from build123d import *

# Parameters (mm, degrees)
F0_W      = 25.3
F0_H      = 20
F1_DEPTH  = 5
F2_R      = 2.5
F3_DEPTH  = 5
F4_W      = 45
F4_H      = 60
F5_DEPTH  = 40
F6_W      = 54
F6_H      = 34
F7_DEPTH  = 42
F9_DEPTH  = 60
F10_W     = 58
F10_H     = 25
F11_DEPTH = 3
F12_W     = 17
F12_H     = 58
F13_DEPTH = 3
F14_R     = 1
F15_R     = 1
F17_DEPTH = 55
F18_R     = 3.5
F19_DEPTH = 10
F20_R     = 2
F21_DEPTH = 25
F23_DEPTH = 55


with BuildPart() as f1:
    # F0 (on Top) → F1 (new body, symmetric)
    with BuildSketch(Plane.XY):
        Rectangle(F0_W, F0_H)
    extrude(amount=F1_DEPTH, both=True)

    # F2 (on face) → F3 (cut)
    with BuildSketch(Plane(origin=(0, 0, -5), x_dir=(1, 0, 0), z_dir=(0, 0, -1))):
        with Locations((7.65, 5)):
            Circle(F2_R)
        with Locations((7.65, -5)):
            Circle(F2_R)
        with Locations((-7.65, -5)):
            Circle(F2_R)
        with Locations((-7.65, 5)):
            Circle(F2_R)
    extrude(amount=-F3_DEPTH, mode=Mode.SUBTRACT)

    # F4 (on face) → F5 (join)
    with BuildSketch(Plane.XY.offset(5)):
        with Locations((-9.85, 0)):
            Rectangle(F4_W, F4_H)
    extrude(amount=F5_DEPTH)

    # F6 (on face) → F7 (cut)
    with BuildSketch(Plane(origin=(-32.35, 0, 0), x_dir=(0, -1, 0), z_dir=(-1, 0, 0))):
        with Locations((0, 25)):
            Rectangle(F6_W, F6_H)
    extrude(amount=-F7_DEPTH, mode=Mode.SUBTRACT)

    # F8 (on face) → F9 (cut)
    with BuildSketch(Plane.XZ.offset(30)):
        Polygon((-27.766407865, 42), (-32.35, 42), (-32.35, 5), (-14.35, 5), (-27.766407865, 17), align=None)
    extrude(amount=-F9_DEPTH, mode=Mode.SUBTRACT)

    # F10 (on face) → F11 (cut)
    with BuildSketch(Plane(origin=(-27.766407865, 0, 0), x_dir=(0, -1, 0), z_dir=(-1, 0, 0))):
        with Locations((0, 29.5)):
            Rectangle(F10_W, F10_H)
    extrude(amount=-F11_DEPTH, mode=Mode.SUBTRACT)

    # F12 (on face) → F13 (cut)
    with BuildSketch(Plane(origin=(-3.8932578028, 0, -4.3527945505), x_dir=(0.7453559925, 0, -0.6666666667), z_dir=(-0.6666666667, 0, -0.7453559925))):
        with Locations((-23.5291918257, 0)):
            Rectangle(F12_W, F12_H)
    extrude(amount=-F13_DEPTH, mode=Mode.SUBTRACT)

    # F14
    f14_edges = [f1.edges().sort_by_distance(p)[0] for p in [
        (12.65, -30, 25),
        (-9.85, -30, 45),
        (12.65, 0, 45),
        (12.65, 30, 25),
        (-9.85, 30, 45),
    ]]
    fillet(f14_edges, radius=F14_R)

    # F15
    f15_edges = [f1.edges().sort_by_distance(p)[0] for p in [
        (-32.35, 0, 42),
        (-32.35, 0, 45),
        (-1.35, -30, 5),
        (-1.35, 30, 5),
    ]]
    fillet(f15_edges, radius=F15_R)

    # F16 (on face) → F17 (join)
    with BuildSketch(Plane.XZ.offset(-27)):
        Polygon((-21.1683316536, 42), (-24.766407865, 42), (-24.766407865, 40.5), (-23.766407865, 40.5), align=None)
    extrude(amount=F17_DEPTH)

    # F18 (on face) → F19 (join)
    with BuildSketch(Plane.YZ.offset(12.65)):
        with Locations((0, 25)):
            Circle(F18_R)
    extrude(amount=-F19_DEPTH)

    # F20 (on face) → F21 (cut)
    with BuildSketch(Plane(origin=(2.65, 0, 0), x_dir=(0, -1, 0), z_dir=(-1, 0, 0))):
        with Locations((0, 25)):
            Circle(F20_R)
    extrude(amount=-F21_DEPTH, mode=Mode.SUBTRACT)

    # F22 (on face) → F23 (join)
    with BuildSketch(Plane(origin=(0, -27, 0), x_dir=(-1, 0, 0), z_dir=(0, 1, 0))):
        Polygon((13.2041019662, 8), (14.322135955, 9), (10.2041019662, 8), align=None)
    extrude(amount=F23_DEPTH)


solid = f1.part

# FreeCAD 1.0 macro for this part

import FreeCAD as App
import Part
import Sketcher

V = App.Vector
Q = App.Units.Quantity


def edges_at(feature, points):
    """Names of the edges that pass closest to the given points."""
    edges = feature.Shape.Edges
    near = lambda p: min(range(len(edges)), key=lambda i: edges[i].distToShape(Part.Vertex(*p))[0])
    return sorted({f"Edge{near(p) + 1}" for p in points})

doc = App.newDocument("Part")
body = doc.addObject("PartDesign::Body", "Body")

# Sketch on XY plane
sketch1 = body.newObject("Sketcher::SketchObject", "Sketch")
sketch1.AttachmentSupport = (doc.getObject("XY_Plane"), [""])
sketch1.MapMode = "FlatFace"
sketch1.addGeometry([
    Part.LineSegment(V(-12.65, 10, 0), V(-12.65, -10, 0)),
    Part.LineSegment(V(-12.65, -10, 0), V(12.65, -10, 0)),
    Part.LineSegment(V(12.65, -10, 0), V(12.65, 10, 0)),
    Part.LineSegment(V(12.65, 10, 0), V(-12.65, 10, 0)),
], False)
sketch1.addConstraint([
    Sketcher.Constraint("Coincident", 0, 2, 1, 1),
    Sketcher.Constraint("Coincident", 1, 2, 2, 1),
    Sketcher.Constraint("Coincident", 2, 2, 3, 1),
    Sketcher.Constraint("Coincident", 3, 2, 0, 1),
    Sketcher.Constraint("Vertical", 0),
    Sketcher.Constraint("Horizontal", 1),
    Sketcher.Constraint("Vertical", 2),
    Sketcher.Constraint("Horizontal", 3),
    Sketcher.Constraint("Symmetric", 0, 2, 2, 2, -1, 1),
    Sketcher.Constraint("DistanceY", 0, 2, 0, 1, Q("20 mm")),
    Sketcher.Constraint("DistanceX", 1, 1, 1, 2, Q("25.3 mm")),
])
pad1 = body.newObject("PartDesign::Pad", "Pad")
pad1.Profile = sketch1
pad1.Length = 10
pad1.Midplane = True

# Sketch on XY plane
sketch2 = body.newObject("Sketcher::SketchObject", "Sketch001")
sketch2.AttachmentSupport = (doc.getObject("XY_Plane"), [""])
sketch2.MapMode = "FlatFace"
sketch2.AttachmentOffset = App.Placement(V(0, 0, -5), App.Rotation())
sketch2.addGeometry([
    Part.Circle(V(7.65, -5, 0), V(0, 0, 1), 2.5),
    Part.Circle(V(7.65, 5, 0), V(0, 0, 1), 2.5),
    Part.Circle(V(-7.65, 5, 0), V(0, 0, 1), 2.5),
    Part.Circle(V(-7.65, -5, 0), V(0, 0, 1), 2.5),
], False)
sketch2.addConstraint([
    Sketcher.Constraint("Equal", 0, 1),
    Sketcher.Constraint("Equal", 1, 2),
    Sketcher.Constraint("Equal", 2, 3),
    Sketcher.Constraint("Symmetric", 0, 3, 2, 3, -1, 1),
    Sketcher.Constraint("Symmetric", 1, 3, 3, 3, -1, 1),
    Sketcher.Constraint("Symmetric", 1, 3, 2, 3, -2),
    Sketcher.Constraint("Diameter", 0, Q("5 mm")),
    Sketcher.Constraint("DistanceY", 0, 3, -1, 1, Q("5 mm")),
    Sketcher.Constraint("DistanceX", 2, 3, 1, 3, Q("15.3 mm")),
])
pocket1 = body.newObject("PartDesign::Pocket", "Pocket")
pocket1.Profile = sketch2
pocket1.Length = 5
pocket1.Reversed = True

# Sketch on XY plane
sketch3 = body.newObject("Sketcher::SketchObject", "Sketch002")
sketch3.AttachmentSupport = (doc.getObject("XY_Plane"), [""])
sketch3.MapMode = "FlatFace"
sketch3.AttachmentOffset = App.Placement(V(0, 0, 5), App.Rotation())
sketch3.addGeometry([
    Part.LineSegment(V(-32.35, 30, 0), V(-32.35, -30, 0)),
    Part.LineSegment(V(-32.35, -30, 0), V(12.65, -30, 0)),
    Part.LineSegment(V(12.65, -30, 0), V(12.65, 30, 0)),
    Part.LineSegment(V(12.65, 30, 0), V(-32.35, 30, 0)),
], False)
sketch3.addConstraint([
    Sketcher.Constraint("Coincident", 0, 2, 1, 1),
    Sketcher.Constraint("Coincident", 1, 2, 2, 1),
    Sketcher.Constraint("Coincident", 2, 2, 3, 1),
    Sketcher.Constraint("Coincident", 3, 2, 0, 1),
    Sketcher.Constraint("Vertical", 0),
    Sketcher.Constraint("Horizontal", 1),
    Sketcher.Constraint("Vertical", 2),
    Sketcher.Constraint("Horizontal", 3),
    Sketcher.Constraint("DistanceX", 1, 1, 1, 2, Q("45 mm")),
    Sketcher.Constraint("DistanceY", 0, 2, 0, 1, Q("60 mm")),
    Sketcher.Constraint("DistanceY", 0, 2, -1, 1, Q("30 mm")),
    Sketcher.Constraint("DistanceX", 0, 2, -1, 1, Q("32.35 mm")),
])
pad2 = body.newObject("PartDesign::Pad", "Pad001")
pad2.Profile = sketch3
pad2.Length = 40

# Sketch on YZ plane
sketch4 = body.newObject("Sketcher::SketchObject", "Sketch003")
sketch4.AttachmentSupport = (doc.getObject("YZ_Plane"), [""])
sketch4.MapMode = "FlatFace"
sketch4.AttachmentOffset = App.Placement(V(0, 0, -32.35), App.Rotation())
sketch4.addGeometry([
    Part.LineSegment(V(27, 42, 0), V(27, 8, 0)),
    Part.LineSegment(V(27, 8, 0), V(-27, 8, 0)),
    Part.LineSegment(V(-27, 8, 0), V(-27, 42, 0)),
    Part.LineSegment(V(-27, 42, 0), V(27, 42, 0)),
], False)
sketch4.addConstraint([
    Sketcher.Constraint("Coincident", 0, 2, 1, 1),
    Sketcher.Constraint("Coincident", 1, 2, 2, 1),
    Sketcher.Constraint("Coincident", 2, 2, 3, 1),
    Sketcher.Constraint("Coincident", 3, 2, 0, 1),
    Sketcher.Constraint("Vertical", 0),
    Sketcher.Constraint("Horizontal", 1),
    Sketcher.Constraint("Vertical", 2),
    Sketcher.Constraint("Horizontal", 3),
    Sketcher.Constraint("DistanceX", 1, 2, 1, 1, Q("54 mm")),
    Sketcher.Constraint("DistanceY", 0, 2, 0, 1, Q("34 mm")),
    Sketcher.Constraint("DistanceX", -1, 1, 0, 2, Q("27 mm")),
    Sketcher.Constraint("DistanceY", -1, 1, 0, 2, Q("8 mm")),
])
pocket2 = body.newObject("PartDesign::Pocket", "Pocket001")
pocket2.Profile = sketch4
pocket2.Length = 42
pocket2.Reversed = True

# Sketch on XZ plane
sketch5 = body.newObject("Sketcher::SketchObject", "Sketch004")
sketch5.AttachmentSupport = (doc.getObject("XZ_Plane"), [""])
sketch5.MapMode = "FlatFace"
sketch5.AttachmentOffset = App.Placement(V(0, 0, 30), App.Rotation())
sketch5.addGeometry([
    Part.LineSegment(V(-27.766408, 42, 0), V(-32.35, 42, 0)),  # 0
    Part.LineSegment(V(-32.35, 42, 0), V(-32.35, 5, 0)),  # 1
    Part.LineSegment(V(-32.35, 5, 0), V(-14.35, 5, 0)),  # 2
    Part.LineSegment(V(-14.35, 5, 0), V(-27.766408, 17, 0)),  # 3
    Part.LineSegment(V(-27.766408, 17, 0), V(-27.766408, 42, 0)),  # 4
], False)
sketch5.addConstraint([
    Sketcher.Constraint("Coincident", 0, 2, 1, 1),
    Sketcher.Constraint("Coincident", 1, 2, 2, 1),
    Sketcher.Constraint("Coincident", 2, 2, 3, 1),
    Sketcher.Constraint("Coincident", 3, 2, 4, 1),
    Sketcher.Constraint("Coincident", 4, 2, 0, 1),
    Sketcher.Constraint("Horizontal", 0),
    Sketcher.Constraint("Vertical", 1),
    Sketcher.Constraint("Horizontal", 2),
    Sketcher.Constraint("Vertical", 4),
    Sketcher.Constraint("DistanceX", 2, 1, 2, 2, Q("18 mm")),
    Sketcher.Constraint("DistanceY", 1, 2, 1, 1, Q("37 mm")),
    Sketcher.Constraint("DistanceY", 4, 1, 4, 2, Q("25 mm")),
    Sketcher.Constraint("Distance", 3, Q("18 mm")),
    Sketcher.Constraint("DistanceY", -1, 1, 0, 2, Q("42 mm")),
    Sketcher.Constraint("DistanceX", 0, 2, -1, 1, Q("32.35 mm")),
])
pocket3 = body.newObject("PartDesign::Pocket", "Pocket002")
pocket3.Profile = sketch5
pocket3.Length = 60

# Sketch on YZ plane
sketch6 = body.newObject("Sketcher::SketchObject", "Sketch005")
sketch6.AttachmentSupport = (doc.getObject("YZ_Plane"), [""])
sketch6.MapMode = "FlatFace"
sketch6.AttachmentOffset = App.Placement(V(0, 0, -27.766408), App.Rotation())
sketch6.addGeometry([
    Part.LineSegment(V(29, 42, 0), V(29, 17, 0)),
    Part.LineSegment(V(29, 17, 0), V(-29, 17, 0)),
    Part.LineSegment(V(-29, 17, 0), V(-29, 42, 0)),
    Part.LineSegment(V(-29, 42, 0), V(29, 42, 0)),
], False)
sketch6.addConstraint([
    Sketcher.Constraint("Coincident", 0, 2, 1, 1),
    Sketcher.Constraint("Coincident", 1, 2, 2, 1),
    Sketcher.Constraint("Coincident", 2, 2, 3, 1),
    Sketcher.Constraint("Coincident", 3, 2, 0, 1),
    Sketcher.Constraint("Vertical", 0),
    Sketcher.Constraint("Horizontal", 1),
    Sketcher.Constraint("Vertical", 2),
    Sketcher.Constraint("Horizontal", 3),
    Sketcher.Constraint("DistanceX", 1, 2, 1, 1, Q("58 mm")),
    Sketcher.Constraint("DistanceY", 0, 2, 0, 1, Q("25 mm")),
    Sketcher.Constraint("DistanceX", -1, 1, 0, 2, Q("29 mm")),
    Sketcher.Constraint("DistanceY", -1, 1, 0, 2, Q("17 mm")),
])
pocket4 = body.newObject("PartDesign::Pocket", "Pocket003")
pocket4.Profile = sketch6
pocket4.Length = 3
pocket4.Reversed = True

# Sketch on an angled plane
sketch7 = body.newObject("Sketcher::SketchObject", "Sketch006")
sketch7.Placement = App.Placement(V(-3.893258, 0, -4.352795), App.Rotation(V(0.745355992, 0, -0.666666667), V(0, -1, 0), V(-0.666666667, 0, -0.745355992), "ZXY"))
sketch7.addGeometry([
    Part.LineSegment(V(-32.029192, 29, 0), V(-32.029192, -29, 0)),
    Part.LineSegment(V(-32.029192, -29, 0), V(-15.029192, -29, 0)),
    Part.LineSegment(V(-15.029192, -29, 0), V(-15.029192, 29, 0)),
    Part.LineSegment(V(-15.029192, 29, 0), V(-32.029192, 29, 0)),
], False)
sketch7.addConstraint([
    Sketcher.Constraint("Coincident", 0, 2, 1, 1),
    Sketcher.Constraint("Coincident", 1, 2, 2, 1),
    Sketcher.Constraint("Coincident", 2, 2, 3, 1),
    Sketcher.Constraint("Coincident", 3, 2, 0, 1),
    Sketcher.Constraint("Vertical", 0),
    Sketcher.Constraint("Horizontal", 1),
    Sketcher.Constraint("Vertical", 2),
    Sketcher.Constraint("Horizontal", 3),
    Sketcher.Constraint("DistanceX", 1, 1, 1, 2, Q("17 mm")),
    Sketcher.Constraint("DistanceY", 0, 2, 0, 1, Q("58 mm")),
    Sketcher.Constraint("DistanceY", 0, 2, -1, 1, Q("29 mm")),
    Sketcher.Constraint("DistanceX", 0, 2, -1, 1, Q("32.029192 mm")),
])
pocket5 = body.newObject("PartDesign::Pocket", "Pocket004")
pocket5.Profile = sketch7
pocket5.Length = 3
doc.recompute()

fillet = body.newObject("PartDesign::Fillet", "Fillet")
fillet.Base = (pocket5, edges_at(pocket5, [
    (12.65, -30, 25),
    (-9.85, -30, 45),
    (12.65, 0, 45),
    (12.65, 30, 25),
    (-9.85, 30, 45),
]))
fillet.Radius = 1
doc.recompute()

fillet2 = body.newObject("PartDesign::Fillet", "Fillet001")
fillet2.Base = (fillet, edges_at(fillet, [
    (-32.35, 0, 42),
    (-32.35, 0, 45),
    (-1.35, -30, 5),
    (-1.35, 30, 5),
]))
fillet2.Radius = 1

# Sketch on XZ plane
sketch8 = body.newObject("Sketcher::SketchObject", "Sketch007")
sketch8.AttachmentSupport = (doc.getObject("XZ_Plane"), [""])
sketch8.MapMode = "FlatFace"
sketch8.AttachmentOffset = App.Placement(V(0, 0, -27), App.Rotation())
sketch8.addGeometry([
    Part.LineSegment(V(-21.168332, 42, 0), V(-24.766408, 42, 0)),
    Part.LineSegment(V(-24.766408, 42, 0), V(-24.766408, 40.5, 0)),
    Part.LineSegment(V(-24.766408, 40.5, 0), V(-23.766408, 40.5, 0)),
    Part.LineSegment(V(-23.766408, 40.5, 0), V(-21.168332, 42, 0)),
], False)
sketch8.addConstraint([
    Sketcher.Constraint("Coincident", 0, 2, 1, 1),
    Sketcher.Constraint("Coincident", 1, 2, 2, 1),
    Sketcher.Constraint("Coincident", 2, 2, 3, 1),
    Sketcher.Constraint("Coincident", 3, 2, 0, 1),
    Sketcher.Constraint("Horizontal", 0),
    Sketcher.Constraint("Vertical", 1),
    Sketcher.Constraint("Horizontal", 2),
    Sketcher.Constraint("DistanceX", 2, 1, 2, 2, Q("1 mm")),
    Sketcher.Constraint("Angle", 3, Q("30 deg")),
    Sketcher.Constraint("Distance", 3, Q("3 mm")),
    Sketcher.Constraint("DistanceY", -1, 1, 0, 2, Q("42 mm")),
    Sketcher.Constraint("DistanceX", 3, 2, -1, 1, Q("21.168332 mm")),
])
pad3 = body.newObject("PartDesign::Pad", "Pad002")
pad3.Profile = sketch8
pad3.Length = 55

# Sketch on YZ plane
sketch9 = body.newObject("Sketcher::SketchObject", "Sketch008")
sketch9.AttachmentSupport = (doc.getObject("YZ_Plane"), [""])
sketch9.MapMode = "FlatFace"
sketch9.AttachmentOffset = App.Placement(V(0, 0, 12.65), App.Rotation())
sketch9.addGeometry(Part.Circle(V(0, 25, 0), V(0, 0, 1), 3.5), False)
sketch9.addConstraint([
    Sketcher.Constraint("PointOnObject", 0, 3, -2),
    Sketcher.Constraint("Diameter", 0, Q("7 mm")),
    Sketcher.Constraint("DistanceY", -1, 1, 0, 3, Q("25 mm")),
])
pad4 = body.newObject("PartDesign::Pad", "Pad003")
pad4.Profile = sketch9
pad4.Length = 10
pad4.Reversed = True

# Sketch on YZ plane
sketch10 = body.newObject("Sketcher::SketchObject", "Sketch009")
sketch10.AttachmentSupport = (doc.getObject("YZ_Plane"), [""])
sketch10.MapMode = "FlatFace"
sketch10.AttachmentOffset = App.Placement(V(0, 0, 2.65), App.Rotation())
sketch10.addGeometry(Part.Circle(V(0, 25, 0), V(0, 0, 1), 2), False)
sketch10.addConstraint([
    Sketcher.Constraint("PointOnObject", 0, 3, -2),
    Sketcher.Constraint("Diameter", 0, Q("4 mm")),
    Sketcher.Constraint("DistanceY", -1, 1, 0, 3, Q("25 mm")),
])
pocket6 = body.newObject("PartDesign::Pocket", "Pocket005")
pocket6.Profile = sketch10
pocket6.Length = 25
pocket6.Reversed = True

# Sketch on XZ plane
sketch11 = body.newObject("Sketcher::SketchObject", "Sketch010")
sketch11.AttachmentSupport = (doc.getObject("XZ_Plane"), [""])
sketch11.MapMode = "FlatFace"
sketch11.AttachmentOffset = App.Placement(V(0, 0, 27), App.Rotation())
sketch11.addGeometry([
    Part.LineSegment(V(-13.204102, 8, 0), V(-14.322136, 9, 0)),
    Part.LineSegment(V(-14.322136, 9, 0), V(-10.204102, 8, 0)),
    Part.LineSegment(V(-10.204102, 8, 0), V(-13.204102, 8, 0)),
], False)
sketch11.addConstraint([
    Sketcher.Constraint("Coincident", 0, 2, 1, 1),
    Sketcher.Constraint("Coincident", 1, 2, 2, 1),
    Sketcher.Constraint("Coincident", 2, 2, 0, 1),
    Sketcher.Constraint("Horizontal", 2),
    Sketcher.Constraint("DistanceX", 2, 2, 2, 1, Q("3 mm")),
    Sketcher.Constraint("DistanceY", -1, 1, 0, 2, Q("9 mm")),
    Sketcher.Constraint("DistanceY", -1, 1, 1, 2, Q("8 mm")),
    Sketcher.Constraint("Distance", 0, Q("1.5 mm")),
    Sketcher.Constraint("DistanceX", 1, 2, -1, 1, Q("10.204102 mm")),
])
pad5 = body.newObject("PartDesign::Pad", "Pad004")
pad5.Profile = sketch11
pad5.Length = 55
pad5.Reversed = True

doc.recompute()
